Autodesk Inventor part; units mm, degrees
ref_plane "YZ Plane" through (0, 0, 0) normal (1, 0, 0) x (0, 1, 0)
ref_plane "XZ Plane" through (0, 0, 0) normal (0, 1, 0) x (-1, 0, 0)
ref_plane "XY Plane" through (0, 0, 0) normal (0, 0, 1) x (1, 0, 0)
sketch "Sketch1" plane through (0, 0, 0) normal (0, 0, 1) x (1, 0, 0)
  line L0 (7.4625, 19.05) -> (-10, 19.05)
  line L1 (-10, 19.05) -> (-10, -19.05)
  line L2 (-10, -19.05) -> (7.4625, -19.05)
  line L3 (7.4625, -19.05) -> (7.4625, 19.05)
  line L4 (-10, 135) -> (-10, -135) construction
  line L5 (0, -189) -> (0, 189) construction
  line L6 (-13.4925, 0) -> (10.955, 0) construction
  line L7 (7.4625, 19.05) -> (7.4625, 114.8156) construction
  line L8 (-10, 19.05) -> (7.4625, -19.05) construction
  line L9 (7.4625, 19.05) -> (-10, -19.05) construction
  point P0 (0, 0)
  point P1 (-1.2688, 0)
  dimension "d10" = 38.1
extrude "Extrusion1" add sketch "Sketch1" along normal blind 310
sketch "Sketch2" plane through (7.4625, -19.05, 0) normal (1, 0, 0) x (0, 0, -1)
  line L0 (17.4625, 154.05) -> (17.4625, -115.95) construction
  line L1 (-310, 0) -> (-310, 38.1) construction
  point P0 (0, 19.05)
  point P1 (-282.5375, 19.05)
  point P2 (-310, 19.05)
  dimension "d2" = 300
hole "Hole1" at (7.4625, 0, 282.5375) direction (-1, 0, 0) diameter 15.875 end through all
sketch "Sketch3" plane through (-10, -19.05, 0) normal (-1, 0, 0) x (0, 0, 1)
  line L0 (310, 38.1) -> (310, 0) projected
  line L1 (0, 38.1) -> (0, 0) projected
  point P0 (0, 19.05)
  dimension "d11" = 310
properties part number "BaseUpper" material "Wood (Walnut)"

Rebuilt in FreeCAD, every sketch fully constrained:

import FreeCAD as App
import Part
import Sketcher

V = App.Vector
Q = App.Units.Quantity

doc = App.newDocument("Part")
params = doc.addObject("Spreadsheet::Sheet", "Params")
for row, (alias, value) in enumerate([
    ("sketch1_height", "1.5 in"),
    ("sketch1_width", "0.6875 in"),
    ("pad1_length", "310 mm"),
    ("sketch2_diameter", "0.625 in"),
    ("hole_diameter", "0.625 in"),
], start=1):
    params.set(f"A{row}", alias)
    params.set(f"B{row}", "=" + value)
    params.setAlias(f"B{row}", alias)

body = doc.addObject("PartDesign::Body", "Body")

sketch1 = body.newObject("Sketcher::SketchObject", "Sketch")
sketch1.AttachmentSupport = (doc.getObject("XY_Plane"), [""])
sketch1.MapMode = "FlatFace"
sketch1.addGeometry(Part.LineSegment(V(7, -19, 0), V(7, 19, 0)), False)
sketch1.addGeometry(Part.LineSegment(V(7, 19, 0), V(-10, 19, 0)), False)
sketch1.addGeometry(Part.LineSegment(V(-10, 19, 0), V(-10, -19, 0)), False)
sketch1.addGeometry(Part.LineSegment(V(-10, -19, 0), V(7, -19, 0)), False)
sketch1.addConstraint(Sketcher.Constraint("Coincident", 0, 2, 1, 1))
sketch1.addConstraint(Sketcher.Constraint("Coincident", 1, 2, 2, 1))
sketch1.addConstraint(Sketcher.Constraint("Coincident", 2, 2, 3, 1))
sketch1.addConstraint(Sketcher.Constraint("Coincident", 3, 2, 0, 1))
sketch1.addConstraint(Sketcher.Constraint("Vertical", 0))
sketch1.addConstraint(Sketcher.Constraint("Horizontal", 1))
sketch1.addConstraint(Sketcher.Constraint("Vertical", 2))
sketch1.addConstraint(Sketcher.Constraint("Horizontal", 3))
sketch1.addConstraint(Sketcher.Constraint("DistanceY", 0, 1, 0, 2, Q("1.5 in")))
sketch1.addConstraint(Sketcher.Constraint("DistanceX", 1, 2, 1, 1, Q("0.6875 in")))
sketch1.addConstraint(Sketcher.Constraint("DistanceY", -1, 1, 0, 2, Q("0.75 in")))
sketch1.addConstraint(Sketcher.Constraint("DistanceX", -1, 1, 0, 2, Q("0.2938 in")))
sketch1.setExpression("Constraints[8]", "Params.sketch1_height")
sketch1.setExpression("Constraints[9]", "Params.sketch1_width")
pad1 = body.newObject("PartDesign::Pad", "Pad")
pad1.Profile = sketch1
pad1.setExpression("Length", "Params.pad1_length")

sketch2 = body.newObject("Sketcher::SketchObject", "Sketch001")
sketch2.AttachmentSupport = (doc.getObject("YZ_Plane"), [""])
sketch2.MapMode = "FlatFace"
sketch2.AttachmentOffset = App.Placement(V(0, 0, 0.2937992 * 25.4), App.Rotation())
sketch2.addGeometry(Part.Circle(V(0, 283, 0), V(0, 0, 1), 8), False)
sketch2.addConstraint(Sketcher.Constraint("PointOnObject", 0, 3, -2))
sketch2.addConstraint(Sketcher.Constraint("Diameter", 0, Q("0.625 in")))
sketch2.addConstraint(Sketcher.Constraint("DistanceY", -1, 1, 0, 3, 282.5375))
sketch2.setExpression("Constraints[1]", "Params.sketch2_diameter")
doc.recompute()
hole = body.newObject("PartDesign::Hole", "Hole")
hole.Profile = sketch2
hole.ThreadType = "None"
hole.setExpression("Diameter", "Params.hole_diameter")
hole.DepthType = "ThroughAll"

doc.recompute()
